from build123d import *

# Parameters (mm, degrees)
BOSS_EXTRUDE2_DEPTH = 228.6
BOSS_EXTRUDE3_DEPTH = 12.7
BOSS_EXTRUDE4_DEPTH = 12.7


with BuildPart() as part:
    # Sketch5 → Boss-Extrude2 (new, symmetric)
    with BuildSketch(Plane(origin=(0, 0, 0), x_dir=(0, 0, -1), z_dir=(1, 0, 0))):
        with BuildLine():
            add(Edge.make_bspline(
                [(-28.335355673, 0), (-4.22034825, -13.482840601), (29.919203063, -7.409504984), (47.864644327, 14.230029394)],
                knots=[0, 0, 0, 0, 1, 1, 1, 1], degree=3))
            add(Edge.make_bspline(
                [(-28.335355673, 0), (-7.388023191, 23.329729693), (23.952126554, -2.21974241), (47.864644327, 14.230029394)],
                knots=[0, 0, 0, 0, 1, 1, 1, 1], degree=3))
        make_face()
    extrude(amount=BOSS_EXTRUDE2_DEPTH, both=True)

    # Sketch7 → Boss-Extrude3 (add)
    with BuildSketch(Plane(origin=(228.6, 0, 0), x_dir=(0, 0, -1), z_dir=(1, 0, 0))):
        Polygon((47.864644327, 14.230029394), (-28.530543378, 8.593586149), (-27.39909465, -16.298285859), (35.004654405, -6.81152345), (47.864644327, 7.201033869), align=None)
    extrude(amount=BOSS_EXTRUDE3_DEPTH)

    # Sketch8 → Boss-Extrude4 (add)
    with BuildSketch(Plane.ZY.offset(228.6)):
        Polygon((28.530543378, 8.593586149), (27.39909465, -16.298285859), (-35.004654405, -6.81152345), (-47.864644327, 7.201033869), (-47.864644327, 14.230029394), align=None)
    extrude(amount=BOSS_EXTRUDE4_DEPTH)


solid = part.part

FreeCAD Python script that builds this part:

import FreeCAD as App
import Part
import Sketcher
from FreeCAD import Vector
Q = App.Units.Quantity


def add_polygon(sketch, points):
    """Adds a closed chain of lines whose ends are joined by coincident constraints."""
    first, n = sketch.GeometryCount, len(points)
    for a, b in zip(points, points[1:] + points[:1]):
        sketch.addGeometry(Part.LineSegment(App.Vector(*a, 0), App.Vector(*b, 0)), False)
    for i in range(n):
        sketch.addConstraint(Sketcher.Constraint("Coincident", first + i, 2, first + (i + 1) % n, 1))

doc = App.newDocument("Part")
body = doc.addObject("PartDesign::Body", "Body")

# Sketch on YZ plane
sketch1 = body.newObject("Sketcher::SketchObject", "Sketch")
sketch1.AttachmentSupport = (doc.getObject("YZ_Plane"), [""])
sketch1.MapMode = "FlatFace"
sketch1.addGeometry([
    Part.BSplineCurve([Vector(0, 28.335356, 0), Vector(-13.482841, 4.220348, 0), Vector(-7.409505, -29.919203, 0), Vector(14.230029, -47.864644, 0)], [4, 4], [0, 1], False, 3, [1, 1, 1, 1], False),
    Part.BSplineCurve([Vector(0, 28.335356, 0), Vector(23.32973, 7.388023, 0), Vector(-2.219742, -23.952127, 0), Vector(14.230029, -47.864644, 0)], [4, 4], [0, 1], False, 3, [1, 1, 1, 1], False),
], False)
sketch1.addConstraint([
    Sketcher.Constraint("Block", 0),
    Sketcher.Constraint("Block", 1),
])
pad1 = body.newObject("PartDesign::Pad", "Pad")
pad1.Profile = sketch1
pad1.Length = Q("18 in")
pad1.Midplane = True

# Sketch on YZ plane
sketch2 = body.newObject("Sketcher::SketchObject", "Sketch001")
sketch2.AttachmentSupport = (doc.getObject("YZ_Plane"), [""])
sketch2.MapMode = "FlatFace"
sketch2.AttachmentOffset = App.Placement(Vector(0, 0, 9 * 25.4), App.Rotation())
add_polygon(sketch2, [(14, -48), (9, 29), (-16, 27), (-7, -35), (7, -48)])  # lines 0-4
sketch2.addConstraint([
    Sketcher.Constraint("Horizontal", 4),
    Sketcher.Constraint("Distance", 2, 63.12073),
    Sketcher.Constraint("Distance", 3, 19.01923),
    Sketcher.Constraint("DistanceX", 4, 1, 4, 2, 7.028996),
    Sketcher.Constraint("DistanceX", -1, 1, 4, 2, 14.230029),
    Sketcher.Constraint("DistanceY", 1, 2, 0, 2, 1.131449),
    Sketcher.Constraint("DistanceY", 2, 2, 1, 2, 62.403749),
    Sketcher.Constraint("DistanceX", 2, 2, 0, 2, 15.40511),
    Sketcher.Constraint("DistanceY", 3, 2, 2, 2, 12.85999),
    Sketcher.Constraint("DistanceY", -1, 1, 0, 2, 28.530543),
])
pad2 = body.newObject("PartDesign::Pad", "Pad001")
pad2.Profile = sketch2
pad2.Length = Q("0.5 in")

# Sketch on YZ plane
sketch3 = body.newObject("Sketcher::SketchObject", "Sketch002")
sketch3.AttachmentSupport = (doc.getObject("YZ_Plane"), [""])
sketch3.MapMode = "FlatFace"
sketch3.AttachmentOffset = App.Placement(Vector(0, 0, -9 * 25.4), App.Rotation())
add_polygon(sketch3, [(-16, 27), (9, 29), (14, -48), (7, -48), (-7, -35)])  # lines 0-4
sketch3.addConstraint([
    Sketcher.Constraint("Horizontal", 2),
    Sketcher.Constraint("Distance", 3, 19.01923),
    Sketcher.Constraint("Distance", 4, 63.12073),
    Sketcher.Constraint("DistanceX", 2, 2, 2, 1, 7.028996),
    Sketcher.Constraint("DistanceX", -1, 1, 1, 2, 14.230029),
    Sketcher.Constraint("DistanceY", 2, 2, 3, 2, 12.85999),
    Sketcher.Constraint("DistanceX", 3, 2, 0, 2, 15.40511),
    Sketcher.Constraint("DistanceY", 4, 2, 0, 2, 1.131449),
    Sketcher.Constraint("DistanceY", 3, 2, 4, 2, 62.403749),
    Sketcher.Constraint("DistanceY", -1, 1, 0, 2, 28.530543),
])
pad3 = body.newObject("PartDesign::Pad", "Pad002")
pad3.Profile = sketch3
pad3.Length = Q("0.5 in")
pad3.Reversed = True

doc.recompute()
